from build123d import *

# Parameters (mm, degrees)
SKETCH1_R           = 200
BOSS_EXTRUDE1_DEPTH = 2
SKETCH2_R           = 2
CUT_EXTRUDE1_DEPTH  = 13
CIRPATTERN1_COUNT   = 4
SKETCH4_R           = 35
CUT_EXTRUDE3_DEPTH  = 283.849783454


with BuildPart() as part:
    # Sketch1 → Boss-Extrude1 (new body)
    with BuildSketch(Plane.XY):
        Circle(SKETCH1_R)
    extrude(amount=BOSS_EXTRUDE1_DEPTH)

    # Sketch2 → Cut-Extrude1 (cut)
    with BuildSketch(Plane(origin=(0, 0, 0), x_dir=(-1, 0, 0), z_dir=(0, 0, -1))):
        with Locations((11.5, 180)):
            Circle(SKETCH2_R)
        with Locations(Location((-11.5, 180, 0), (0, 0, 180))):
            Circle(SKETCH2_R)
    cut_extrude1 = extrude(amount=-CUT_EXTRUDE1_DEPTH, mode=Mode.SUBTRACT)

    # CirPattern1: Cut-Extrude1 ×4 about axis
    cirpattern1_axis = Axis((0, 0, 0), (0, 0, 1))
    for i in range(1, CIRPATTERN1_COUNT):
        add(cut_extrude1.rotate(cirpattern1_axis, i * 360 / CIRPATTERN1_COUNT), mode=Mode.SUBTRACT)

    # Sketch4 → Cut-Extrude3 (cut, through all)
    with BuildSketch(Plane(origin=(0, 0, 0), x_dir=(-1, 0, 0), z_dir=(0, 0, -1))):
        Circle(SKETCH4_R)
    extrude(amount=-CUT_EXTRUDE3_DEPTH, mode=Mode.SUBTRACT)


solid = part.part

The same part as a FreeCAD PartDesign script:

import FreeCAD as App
import Part
import Sketcher
from FreeCAD import Vector

doc = App.newDocument("Part")
body = doc.addObject("PartDesign::Body", "Body")

# Sketch on XY plane
sketch1 = body.newObject("Sketcher::SketchObject", "Sketch")
sketch1.AttachmentSupport = (doc.getObject("XY_Plane"), [""])
sketch1.MapMode = "FlatFace"
sketch1.addGeometry(Part.Circle(Vector(0, 0, 0), Vector(0, 0, 1), 200), False)
sketch1.addConstraint([
    Sketcher.Constraint("Coincident", 0, 3, -1, 1),
    Sketcher.Constraint("Diameter", 0, 400.0),
])
pad1 = body.newObject("PartDesign::Pad", "Pad")
pad1.Profile = sketch1
pad1.Length = 2

# Sketch on XY plane
sketch2 = body.newObject("Sketcher::SketchObject", "Sketch001")
sketch2.AttachmentSupport = (doc.getObject("XY_Plane"), [""])
sketch2.MapMode = "FlatFace"
sketch2.addGeometry([
    Part.Circle(Vector(-11.5, 180, 0), Vector(0, 0, 1), 2),
    Part.Circle(Vector(11.5, 180, 0), Vector(0, 0, 1), 2),
], False)
sketch2.addConstraint([
    Sketcher.Constraint("Equal", 0, 1),
    Sketcher.Constraint("Symmetric", 0, 3, 1, 3, -2),
    Sketcher.Constraint("Diameter", 0, 4.0),
    Sketcher.Constraint("DistanceY", -1, 1, 0, 3, 180.0),
    Sketcher.Constraint("DistanceX", 0, 3, 1, 3, 23.0),
])
pocket1 = body.newObject("PartDesign::Pocket", "Pocket")
pocket1.Profile = sketch2
pocket1.Length = 13
pocket1.Reversed = True
doc.recompute()

polarpattern = body.newObject("PartDesign::PolarPattern", "PolarPattern")
polarpattern.Originals = [pocket1]
polarpattern.Axis = (doc.getObject("Z_Axis"), [""])
polarpattern.Angle = 360
polarpattern.Occurrences = 4
body.Tip = polarpattern

# Sketch on XY plane
sketch3 = body.newObject("Sketcher::SketchObject", "Sketch002")
sketch3.AttachmentSupport = (doc.getObject("XY_Plane"), [""])
sketch3.MapMode = "FlatFace"
sketch3.addGeometry(Part.Circle(Vector(0, 0, 0), Vector(0, 0, 1), 35), False)
sketch3.addConstraint([
    Sketcher.Constraint("Coincident", 0, 3, -1, 1),
    Sketcher.Constraint("Diameter", 0, 70.0),
])
pocket2 = body.newObject("PartDesign::Pocket", "Pocket001")
pocket2.Profile = sketch3
pocket2.Type = "ThroughAll"
pocket2.Reversed = True

doc.recompute()
